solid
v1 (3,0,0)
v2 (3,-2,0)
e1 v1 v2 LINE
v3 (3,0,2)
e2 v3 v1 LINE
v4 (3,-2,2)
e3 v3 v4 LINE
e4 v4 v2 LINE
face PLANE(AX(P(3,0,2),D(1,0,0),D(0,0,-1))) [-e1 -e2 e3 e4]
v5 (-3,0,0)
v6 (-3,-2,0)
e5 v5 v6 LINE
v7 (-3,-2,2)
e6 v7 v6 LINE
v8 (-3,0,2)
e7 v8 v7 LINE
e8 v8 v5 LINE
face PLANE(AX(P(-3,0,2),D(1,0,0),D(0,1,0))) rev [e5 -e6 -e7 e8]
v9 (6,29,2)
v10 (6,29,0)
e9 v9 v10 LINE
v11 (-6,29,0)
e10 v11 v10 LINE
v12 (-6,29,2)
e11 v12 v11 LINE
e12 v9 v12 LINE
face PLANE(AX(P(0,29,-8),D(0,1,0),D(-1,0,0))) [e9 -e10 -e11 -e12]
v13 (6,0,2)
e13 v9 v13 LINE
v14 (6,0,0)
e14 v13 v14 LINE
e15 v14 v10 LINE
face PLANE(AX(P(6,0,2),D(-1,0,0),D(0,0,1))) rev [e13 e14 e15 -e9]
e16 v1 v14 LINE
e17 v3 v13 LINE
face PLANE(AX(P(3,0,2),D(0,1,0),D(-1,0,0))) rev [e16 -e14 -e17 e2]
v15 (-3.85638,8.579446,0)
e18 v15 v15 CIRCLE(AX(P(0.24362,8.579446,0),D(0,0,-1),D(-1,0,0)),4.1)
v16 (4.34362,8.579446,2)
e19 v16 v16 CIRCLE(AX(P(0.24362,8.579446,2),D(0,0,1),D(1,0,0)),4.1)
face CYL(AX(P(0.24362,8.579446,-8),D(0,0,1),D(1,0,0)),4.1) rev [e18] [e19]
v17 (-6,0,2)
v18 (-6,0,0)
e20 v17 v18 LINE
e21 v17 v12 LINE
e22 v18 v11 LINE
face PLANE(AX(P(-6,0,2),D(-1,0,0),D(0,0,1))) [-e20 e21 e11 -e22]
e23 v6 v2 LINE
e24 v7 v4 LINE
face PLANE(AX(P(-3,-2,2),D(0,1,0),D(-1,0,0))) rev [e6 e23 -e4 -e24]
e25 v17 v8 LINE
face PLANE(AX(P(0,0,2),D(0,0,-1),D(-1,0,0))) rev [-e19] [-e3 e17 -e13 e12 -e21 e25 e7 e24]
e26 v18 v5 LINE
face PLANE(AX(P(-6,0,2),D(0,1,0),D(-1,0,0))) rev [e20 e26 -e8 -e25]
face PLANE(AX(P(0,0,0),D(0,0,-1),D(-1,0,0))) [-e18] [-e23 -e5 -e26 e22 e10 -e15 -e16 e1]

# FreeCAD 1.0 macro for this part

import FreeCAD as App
import Part
import Sketcher

V = App.Vector
Q = App.Units.Quantity


def add_polygon(sketch, points):
    """Adds a closed chain of lines whose ends are joined by coincident constraints."""
    first, n = sketch.GeometryCount, len(points)
    for a, b in zip(points, points[1:] + points[:1]):
        sketch.addGeometry(Part.LineSegment(App.Vector(*a, 0), App.Vector(*b, 0)), False)
    for i in range(n):
        sketch.addConstraint(Sketcher.Constraint("Coincident", first + i, 2, first + (i + 1) % n, 1))

doc = App.newDocument("Part")
body = doc.addObject("PartDesign::Body", "Body")

# Sketch on XY plane
sketch1 = body.newObject("Sketcher::SketchObject", "Sketch")
sketch1.AttachmentSupport = (doc.getObject("XY_Plane"), [""])
sketch1.MapMode = "FlatFace"
add_polygon(sketch1, [(-6, 30.1), (-6, 0), (-3, 0), (-3, -2), (3, -2), (3, 0), (6, 0), (6, 30.1)])  # lines 0-7
sketch1.addConstraint([
    Sketcher.Constraint("Vertical", 0),
    Sketcher.Constraint("Horizontal", 1),
    Sketcher.Constraint("Vertical", 2),
    Sketcher.Constraint("Horizontal", 3),
    Sketcher.Constraint("Vertical", 4),
    Sketcher.Constraint("Horizontal", 5),
    Sketcher.Constraint("Vertical", 6),
    Sketcher.Constraint("Horizontal", 7),
    Sketcher.Constraint("Symmetric", 1, 2, 4, 2, -1, 1),
    Sketcher.Constraint("Symmetric", 0, 2, 5, 2, -2),
    Sketcher.Constraint("DistanceX", 1, 1, 1, 2, Q("3 mm")),
    Sketcher.Constraint("DistanceX", 3, 1, 3, 2, Q("6 mm")),
    Sketcher.Constraint("DistanceY", 2, 2, 2, 1, Q("2 mm")),
    Sketcher.Constraint("DistanceY", 0, 2, 0, 1, Q("30.078774 mm")),
])
pad1 = body.newObject("PartDesign::Pad", "Pad")
pad1.Profile = sketch1
pad1.Length = 2

# Sketch on XY plane
sketch2 = body.newObject("Sketcher::SketchObject", "Sketch001")
sketch2.AttachmentSupport = (doc.getObject("XY_Plane"), [""])
sketch2.MapMode = "FlatFace"
sketch2.AttachmentOffset = App.Placement(V(0, 0, 2), App.Rotation())
sketch2.addGeometry(Part.Circle(V(0.2, 8.6, 0), V(0, 0, 1), 4.1), False)
sketch2.addConstraint([
    Sketcher.Constraint("Diameter", 0, Q("8.2 mm")),
    Sketcher.Constraint("DistanceX", -1, 1, 0, 3, Q("0.24362 mm")),
    Sketcher.Constraint("DistanceY", -1, 1, 0, 3, Q("8.579446 mm")),
])
pocket1 = body.newObject("PartDesign::Pocket", "Pocket")
pocket1.Profile = sketch2
pocket1.Length = 10

# Sketch on XY plane
sketch3 = body.newObject("Sketcher::SketchObject", "Sketch002")
sketch3.AttachmentSupport = (doc.getObject("XY_Plane"), [""])
sketch3.MapMode = "FlatFace"
sketch3.AttachmentOffset = App.Placement(V(0, 0, 2), App.Rotation())
add_polygon(sketch3, [(10, 29), (10, 34), (-10, 34), (-10, 29)])  # lines 0-3
sketch3.addConstraint([
    Sketcher.Constraint("Vertical", 0),
    Sketcher.Constraint("Horizontal", 1),
    Sketcher.Constraint("Vertical", 2),
    Sketcher.Constraint("Horizontal", 3),
    Sketcher.Constraint("DistanceY", -1, 1, 2, 2, Q("29 mm")),
    Sketcher.Constraint("DistanceX", 1, 2, -1, 1, Q("9.585001 mm")),
    Sketcher.Constraint("DistanceX", 1, 2, 1, 1, Q("19.88388 mm")),
    Sketcher.Constraint("DistanceY", 0, 1, 0, 2, Q("5.143483 mm")),
])
pocket2 = body.newObject("PartDesign::Pocket", "Pocket001")
pocket2.Profile = sketch3
pocket2.Length = 10

doc.recompute()
